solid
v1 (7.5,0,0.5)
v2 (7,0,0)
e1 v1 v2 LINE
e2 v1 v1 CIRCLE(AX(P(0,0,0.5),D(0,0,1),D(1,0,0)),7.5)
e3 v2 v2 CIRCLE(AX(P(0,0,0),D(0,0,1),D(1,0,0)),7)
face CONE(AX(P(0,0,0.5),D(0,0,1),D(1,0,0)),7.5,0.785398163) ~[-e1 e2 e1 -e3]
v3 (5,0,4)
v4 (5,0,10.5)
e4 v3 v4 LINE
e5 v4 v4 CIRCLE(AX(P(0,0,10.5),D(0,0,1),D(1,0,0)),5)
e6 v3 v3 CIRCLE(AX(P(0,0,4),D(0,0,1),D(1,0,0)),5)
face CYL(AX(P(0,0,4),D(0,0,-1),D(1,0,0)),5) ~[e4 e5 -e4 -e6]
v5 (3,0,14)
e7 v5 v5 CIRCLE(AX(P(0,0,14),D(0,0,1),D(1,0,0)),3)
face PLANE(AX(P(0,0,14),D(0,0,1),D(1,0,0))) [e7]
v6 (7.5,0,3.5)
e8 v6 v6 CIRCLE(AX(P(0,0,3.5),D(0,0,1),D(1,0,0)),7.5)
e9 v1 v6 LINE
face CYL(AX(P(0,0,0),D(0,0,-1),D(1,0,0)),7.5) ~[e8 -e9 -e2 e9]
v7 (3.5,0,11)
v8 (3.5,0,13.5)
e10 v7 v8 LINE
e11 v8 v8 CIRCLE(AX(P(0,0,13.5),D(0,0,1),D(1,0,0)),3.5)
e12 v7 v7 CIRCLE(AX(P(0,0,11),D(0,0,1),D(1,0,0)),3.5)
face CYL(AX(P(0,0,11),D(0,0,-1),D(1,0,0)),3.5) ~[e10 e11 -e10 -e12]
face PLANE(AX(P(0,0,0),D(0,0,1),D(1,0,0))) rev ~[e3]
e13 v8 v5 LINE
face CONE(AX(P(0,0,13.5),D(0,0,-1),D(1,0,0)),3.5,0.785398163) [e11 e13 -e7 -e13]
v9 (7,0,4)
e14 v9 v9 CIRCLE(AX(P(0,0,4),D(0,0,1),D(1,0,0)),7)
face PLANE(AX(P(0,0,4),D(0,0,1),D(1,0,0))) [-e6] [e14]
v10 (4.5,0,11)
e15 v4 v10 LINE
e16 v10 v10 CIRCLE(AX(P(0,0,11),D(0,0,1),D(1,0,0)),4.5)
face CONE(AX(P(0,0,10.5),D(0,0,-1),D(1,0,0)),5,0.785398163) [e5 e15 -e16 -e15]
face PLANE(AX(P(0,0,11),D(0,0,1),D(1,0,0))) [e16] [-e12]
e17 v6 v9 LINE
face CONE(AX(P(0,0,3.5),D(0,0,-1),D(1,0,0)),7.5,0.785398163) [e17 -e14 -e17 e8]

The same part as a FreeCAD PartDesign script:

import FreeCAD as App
import Part
import Sketcher
from FreeCAD import Vector


def edges_at(feature, points):
    """Names of the edges that pass closest to the given points."""
    edges = feature.Shape.Edges
    near = lambda p: min(range(len(edges)), key=lambda i: edges[i].distToShape(Part.Vertex(*p))[0])
    return sorted({f"Edge{near(p) + 1}" for p in points})

doc = App.newDocument("Part")
body = doc.addObject("PartDesign::Body", "Body")

# Sketch on XY plane
sketch1 = body.newObject("Sketcher::SketchObject", "Sketch")
sketch1.AttachmentSupport = (doc.getObject("XY_Plane"), [""])
sketch1.MapMode = "FlatFace"
sketch1.addGeometry(Part.Circle(Vector(0, 0, 0), Vector(0, 0, 1), 7.5), False)
sketch1.addConstraint(Sketcher.Constraint("Coincident", 0, 3, -1, 1))
sketch1.addConstraint(Sketcher.Constraint("Diameter", 0, 15.0))
pad1 = body.newObject("PartDesign::Pad", "Pad")
pad1.Profile = sketch1
pad1.Length = 4

# Sketch on XY plane
sketch2 = body.newObject("Sketcher::SketchObject", "Sketch001")
sketch2.AttachmentSupport = (doc.getObject("XY_Plane"), [""])
sketch2.MapMode = "FlatFace"
sketch2.AttachmentOffset = App.Placement(Vector(0, 0, 4), App.Rotation())
sketch2.addGeometry(Part.Circle(Vector(0, 0, 0), Vector(0, 0, 1), 5), False)
sketch2.addConstraint(Sketcher.Constraint("Coincident", 0, 3, -1, 1))
sketch2.addConstraint(Sketcher.Constraint("Diameter", 0, 10.0))
pad2 = body.newObject("PartDesign::Pad", "Pad001")
pad2.Profile = sketch2
pad2.Length = 7

# Sketch on XY plane
sketch3 = body.newObject("Sketcher::SketchObject", "Sketch002")
sketch3.AttachmentSupport = (doc.getObject("XY_Plane"), [""])
sketch3.MapMode = "FlatFace"
sketch3.AttachmentOffset = App.Placement(Vector(0, 0, 11), App.Rotation())
sketch3.addGeometry(Part.Circle(Vector(0, 0, 0), Vector(0, 0, 1), 3.5), False)
sketch3.addConstraint(Sketcher.Constraint("Coincident", 0, 3, -1, 1))
sketch3.addConstraint(Sketcher.Constraint("Diameter", 0, 7.0))
pad3 = body.newObject("PartDesign::Pad", "Pad002")
pad3.Profile = sketch3
pad3.Length = 3
doc.recompute()

chamfer = body.newObject("PartDesign::Chamfer", "Chamfer")
chamfer.Base = (pad3, edges_at(pad3, [
    (-3.5, 0, 14),
    (-5, 0, 11),
    (-7.5, 0, 4),
    (-7.5, 0, 0),
]))
chamfer.Size = 0.5

doc.recompute()
